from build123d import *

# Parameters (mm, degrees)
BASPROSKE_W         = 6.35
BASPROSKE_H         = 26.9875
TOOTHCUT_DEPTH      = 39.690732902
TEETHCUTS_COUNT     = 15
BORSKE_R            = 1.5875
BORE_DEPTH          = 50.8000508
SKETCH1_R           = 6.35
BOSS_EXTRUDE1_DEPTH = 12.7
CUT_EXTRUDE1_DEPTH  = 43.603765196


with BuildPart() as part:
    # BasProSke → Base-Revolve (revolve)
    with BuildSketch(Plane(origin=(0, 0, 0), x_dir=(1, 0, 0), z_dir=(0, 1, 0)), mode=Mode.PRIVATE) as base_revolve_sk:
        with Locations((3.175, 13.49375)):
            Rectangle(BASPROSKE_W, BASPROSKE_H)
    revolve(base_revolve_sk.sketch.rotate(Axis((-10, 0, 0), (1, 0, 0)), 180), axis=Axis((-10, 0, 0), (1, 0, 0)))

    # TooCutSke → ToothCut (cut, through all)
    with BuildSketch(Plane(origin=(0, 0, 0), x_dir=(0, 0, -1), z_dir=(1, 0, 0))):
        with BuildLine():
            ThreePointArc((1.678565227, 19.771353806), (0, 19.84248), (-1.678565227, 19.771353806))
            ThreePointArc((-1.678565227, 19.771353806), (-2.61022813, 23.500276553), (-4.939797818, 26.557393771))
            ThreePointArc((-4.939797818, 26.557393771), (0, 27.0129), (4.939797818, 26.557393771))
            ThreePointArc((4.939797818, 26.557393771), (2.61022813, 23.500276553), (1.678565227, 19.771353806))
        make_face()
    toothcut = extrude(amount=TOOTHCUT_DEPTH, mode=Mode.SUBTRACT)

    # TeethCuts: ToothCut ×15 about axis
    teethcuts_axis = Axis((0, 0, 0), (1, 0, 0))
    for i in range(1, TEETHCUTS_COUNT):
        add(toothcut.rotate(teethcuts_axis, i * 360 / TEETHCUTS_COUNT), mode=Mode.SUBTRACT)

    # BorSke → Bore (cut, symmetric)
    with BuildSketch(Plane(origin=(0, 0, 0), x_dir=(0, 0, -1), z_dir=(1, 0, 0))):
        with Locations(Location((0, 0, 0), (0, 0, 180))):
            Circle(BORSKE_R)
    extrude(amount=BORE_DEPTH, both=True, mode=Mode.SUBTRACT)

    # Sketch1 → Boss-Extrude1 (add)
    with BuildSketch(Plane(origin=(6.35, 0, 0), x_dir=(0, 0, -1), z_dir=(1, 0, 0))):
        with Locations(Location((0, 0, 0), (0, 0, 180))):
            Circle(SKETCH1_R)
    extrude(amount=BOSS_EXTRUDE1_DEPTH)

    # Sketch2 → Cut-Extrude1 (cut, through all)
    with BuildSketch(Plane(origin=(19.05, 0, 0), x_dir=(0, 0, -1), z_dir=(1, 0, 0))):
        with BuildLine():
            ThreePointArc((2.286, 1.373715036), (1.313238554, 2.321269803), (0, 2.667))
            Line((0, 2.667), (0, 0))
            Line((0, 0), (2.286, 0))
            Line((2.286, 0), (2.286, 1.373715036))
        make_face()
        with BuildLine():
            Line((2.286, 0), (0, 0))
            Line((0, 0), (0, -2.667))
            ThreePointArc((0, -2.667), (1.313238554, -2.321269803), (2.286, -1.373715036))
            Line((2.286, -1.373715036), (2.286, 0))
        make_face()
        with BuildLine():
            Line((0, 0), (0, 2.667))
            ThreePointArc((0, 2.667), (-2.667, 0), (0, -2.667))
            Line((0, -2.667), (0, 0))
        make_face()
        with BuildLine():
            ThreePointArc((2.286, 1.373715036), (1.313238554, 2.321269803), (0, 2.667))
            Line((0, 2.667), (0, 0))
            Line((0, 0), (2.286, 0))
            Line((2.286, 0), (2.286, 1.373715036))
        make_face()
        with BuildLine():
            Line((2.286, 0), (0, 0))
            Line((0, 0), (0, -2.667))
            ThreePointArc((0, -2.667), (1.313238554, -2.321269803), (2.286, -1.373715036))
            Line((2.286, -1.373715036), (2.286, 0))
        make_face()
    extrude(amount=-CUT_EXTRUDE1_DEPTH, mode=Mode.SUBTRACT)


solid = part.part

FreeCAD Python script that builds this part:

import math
import FreeCAD as App
import Part
import Sketcher
Q = App.Units.Quantity

doc = App.newDocument("Part")
params = doc.addObject("Spreadsheet::Sheet", "Params")
for row, (alias, value) in enumerate([
    ("sketch1_width", "0.25 in"),
    ("sketch1_height", "1.0625 in"),
    ("revolution_angle", "360 deg"),
    ("sketch2_radius", "0.375 in"),
    ("sketch3_diameter", "0.125 in"),
    ("pocket2_length", "101.600102 mm"),
    ("sketch4_diameter", "0.5 in"),
    ("pad1_length", "0.5 in"),
    ("sketch5_radius", "0.105 in"),
], start=1):
    params.set(f"A{row}", alias)
    params.set(f"B{row}", "=" + value)
    params.setAlias(f"B{row}", alias)

body = doc.addObject("PartDesign::Body", "Body")

sketch1 = body.newObject("Sketcher::SketchObject", "Sketch")
sketch1.AttachmentSupport = (doc.getObject("XZ_Plane"), [""])
sketch1.MapMode = "FlatFace"
sketch1.addGeometry([
    Part.LineSegment(App.Vector(0, -27, 0), App.Vector(0, 0, 0)),
    Part.LineSegment(App.Vector(0, 0, 0), App.Vector(6, 0, 0)),
    Part.LineSegment(App.Vector(6, 0, 0), App.Vector(6, -27, 0)),
    Part.LineSegment(App.Vector(6, -27, 0), App.Vector(0, -27, 0)),
], False)
sketch1.addConstraint([
    Sketcher.Constraint("Coincident", 0, 2, 1, 1),
    Sketcher.Constraint("Coincident", 1, 2, 2, 1),
    Sketcher.Constraint("Coincident", 2, 2, 3, 1),
    Sketcher.Constraint("Coincident", 3, 2, 0, 1),
    Sketcher.Constraint("Vertical", 0),
    Sketcher.Constraint("Horizontal", 1),
    Sketcher.Constraint("Vertical", 2),
    Sketcher.Constraint("Horizontal", 3),
    Sketcher.Constraint("Coincident", 0, 2, -1, 1),
    Sketcher.Constraint("DistanceX", 1, 1, 1, 2, Q("0.25 in")),
    Sketcher.Constraint("DistanceY", 0, 1, 0, 2, Q("1.0625 in")),
])
sketch1.setExpression("Constraints[9]", "Params.sketch1_width")
sketch1.setExpression("Constraints[10]", "Params.sketch1_height")
revolution = body.newObject("PartDesign::Revolution", "Revolution")
revolution.Profile = sketch1
revolution.ReferenceAxis = (sketch1, ["H_Axis"])
revolution.setExpression("Angle", "Params.revolution_angle")

sketch2 = body.newObject("Sketcher::SketchObject", "Sketch001")
sketch2.AttachmentSupport = (doc.getObject("YZ_Plane"), [""])
sketch2.MapMode = "FlatFace"
sketch2.addGeometry([
    Part.ArcOfCircle(Part.Circle(App.Vector(0, 0, 0), App.Vector(0, 0, 1), 19.8), math.radians(-4.85), math.radians(4.85)),
    Part.ArcOfCircle(Part.Circle(App.Vector(19.4, -11.2, 0), App.Vector(0, 0, 1), 9.5), math.radians(41), math.radians(88)),
    Part.ArcOfCircle(Part.Circle(App.Vector(0, 0, 0), App.Vector(0, 0, 1), 27), math.radians(-11), math.radians(11)),
    Part.ArcOfCircle(Part.Circle(App.Vector(19.4, 11.2, 0), App.Vector(0, 0, 1), 9.5), math.radians(-88), math.radians(-41)),
], False)
sketch2.addConstraint([
    Sketcher.Constraint("Coincident", 0, 1, 1, 2),
    Sketcher.Constraint("Coincident", 1, 1, 2, 1),
    Sketcher.Constraint("Coincident", 2, 2, 3, 2),
    Sketcher.Constraint("Coincident", 3, 1, 0, 2),
    Sketcher.Constraint("Coincident", 0, 3, -1, 1),
    Sketcher.Constraint("Coincident", 2, 3, -1, 1),
    Sketcher.Constraint("Equal", 1, 3),
    Sketcher.Constraint("Symmetric", 1, 3, 3, 3, -1),
    Sketcher.Constraint("Radius", 1, Q("0.375 in")),
    Sketcher.Constraint("Radius", 0, Q("0.7812 in")),
    Sketcher.Constraint("Radius", 2, Q("1.0635 in")),
    Sketcher.Constraint("DistanceX", -1, 1, 1, 3, 19.374469),
    Sketcher.Constraint("DistanceY", 0, 1, 3, 3, 12.873858),
])
sketch2.setExpression("Constraints[8]", "Params.sketch2_radius")
pocket1 = body.newObject("PartDesign::Pocket", "Pocket")
pocket1.Profile = sketch2
pocket1.Type = "ThroughAll"
pocket1.Reversed = True
doc.recompute()

polarpattern = body.newObject("PartDesign::PolarPattern", "PolarPattern")
polarpattern.Originals = [pocket1]
polarpattern.Axis = (doc.getObject("X_Axis"), [""])
polarpattern.Angle = 360
polarpattern.Occurrences = 15
body.Tip = polarpattern

sketch3 = body.newObject("Sketcher::SketchObject", "Sketch002")
sketch3.AttachmentSupport = (doc.getObject("YZ_Plane"), [""])
sketch3.MapMode = "FlatFace"
sketch3.addGeometry(Part.Circle(App.Vector(0, 0, 0), App.Vector(0, 0, 1), 1.6), False)
sketch3.addConstraint([
    Sketcher.Constraint("Coincident", 0, 3, -1, 1),
    Sketcher.Constraint("Diameter", 0, Q("0.125 in")),
])
sketch3.setExpression("Constraints[1]", "Params.sketch3_diameter")
pocket2 = body.newObject("PartDesign::Pocket", "Pocket001")
pocket2.Profile = sketch3
pocket2.setExpression("Length", "Params.pocket2_length")
pocket2.Midplane = True

sketch4 = body.newObject("Sketcher::SketchObject", "Sketch003")
sketch4.AttachmentSupport = (doc.getObject("YZ_Plane"), [""])
sketch4.MapMode = "FlatFace"
sketch4.AttachmentOffset = App.Placement(App.Vector(0, 0, 0.25 * 25.4), App.Rotation())
sketch4.addGeometry(Part.Circle(App.Vector(0, 0, 0), App.Vector(0, 0, 1), 6), False)
sketch4.addConstraint([
    Sketcher.Constraint("Coincident", 0, 3, -1, 1),
    Sketcher.Constraint("Diameter", 0, Q("0.5 in")),
])
sketch4.setExpression("Constraints[1]", "Params.sketch4_diameter")
pad1 = body.newObject("PartDesign::Pad", "Pad")
pad1.Profile = sketch4
pad1.setExpression("Length", "Params.pad1_length")

sketch5 = body.newObject("Sketcher::SketchObject", "Sketch004")
sketch5.AttachmentSupport = (doc.getObject("YZ_Plane"), [""])
sketch5.MapMode = "FlatFace"
sketch5.AttachmentOffset = App.Placement(App.Vector(0, 0, 0.75 * 25.4), App.Rotation())
sketch5.addGeometry([
    Part.ArcOfCircle(Part.Circle(App.Vector(0, 0, 0), App.Vector(0, 0, 1), 2.7), math.radians(-59), math.radians(0)),
    Part.ArcOfCircle(Part.Circle(App.Vector(0, 0, 0), App.Vector(0, 0, 1), 2.7), math.radians(0), math.radians(180)),
    Part.ArcOfCircle(Part.Circle(App.Vector(0, 0, 0), App.Vector(0, 0, 1), 2.7), math.radians(-180), math.radians(-121)),
    Part.LineSegment(App.Vector(-1.4, -2.3, 0), App.Vector(1.4, -2.3, 0)),
], False)
sketch5.addConstraint([
    Sketcher.Constraint("Tangent", 0, 2, 1, 1),
    Sketcher.Constraint("Tangent", 1, 2, 2, 1),
    Sketcher.Constraint("Coincident", 2, 2, 3, 1),
    Sketcher.Constraint("Coincident", 3, 2, 0, 1),
    Sketcher.Constraint("Horizontal", 3),
    Sketcher.Constraint("Coincident", 0, 3, -1, 1),
    Sketcher.Constraint("Equal", 0, 1),
    Sketcher.Constraint("Equal", 1, 2),
    Sketcher.Constraint("PointOnObject", 0, 2, -1),
    Sketcher.Constraint("PointOnObject", 1, 2, -1),
    Sketcher.Constraint("Radius", 0, Q("0.105 in")),
    Sketcher.Constraint("DistanceY", 2, 2, -1, 1, Q("0.09 in")),
])
sketch5.setExpression("Constraints[10]", "Params.sketch5_radius")
pocket3 = body.newObject("PartDesign::Pocket", "Pocket002")
pocket3.Profile = sketch5
pocket3.Type = "ThroughAll"

doc.recompute()
